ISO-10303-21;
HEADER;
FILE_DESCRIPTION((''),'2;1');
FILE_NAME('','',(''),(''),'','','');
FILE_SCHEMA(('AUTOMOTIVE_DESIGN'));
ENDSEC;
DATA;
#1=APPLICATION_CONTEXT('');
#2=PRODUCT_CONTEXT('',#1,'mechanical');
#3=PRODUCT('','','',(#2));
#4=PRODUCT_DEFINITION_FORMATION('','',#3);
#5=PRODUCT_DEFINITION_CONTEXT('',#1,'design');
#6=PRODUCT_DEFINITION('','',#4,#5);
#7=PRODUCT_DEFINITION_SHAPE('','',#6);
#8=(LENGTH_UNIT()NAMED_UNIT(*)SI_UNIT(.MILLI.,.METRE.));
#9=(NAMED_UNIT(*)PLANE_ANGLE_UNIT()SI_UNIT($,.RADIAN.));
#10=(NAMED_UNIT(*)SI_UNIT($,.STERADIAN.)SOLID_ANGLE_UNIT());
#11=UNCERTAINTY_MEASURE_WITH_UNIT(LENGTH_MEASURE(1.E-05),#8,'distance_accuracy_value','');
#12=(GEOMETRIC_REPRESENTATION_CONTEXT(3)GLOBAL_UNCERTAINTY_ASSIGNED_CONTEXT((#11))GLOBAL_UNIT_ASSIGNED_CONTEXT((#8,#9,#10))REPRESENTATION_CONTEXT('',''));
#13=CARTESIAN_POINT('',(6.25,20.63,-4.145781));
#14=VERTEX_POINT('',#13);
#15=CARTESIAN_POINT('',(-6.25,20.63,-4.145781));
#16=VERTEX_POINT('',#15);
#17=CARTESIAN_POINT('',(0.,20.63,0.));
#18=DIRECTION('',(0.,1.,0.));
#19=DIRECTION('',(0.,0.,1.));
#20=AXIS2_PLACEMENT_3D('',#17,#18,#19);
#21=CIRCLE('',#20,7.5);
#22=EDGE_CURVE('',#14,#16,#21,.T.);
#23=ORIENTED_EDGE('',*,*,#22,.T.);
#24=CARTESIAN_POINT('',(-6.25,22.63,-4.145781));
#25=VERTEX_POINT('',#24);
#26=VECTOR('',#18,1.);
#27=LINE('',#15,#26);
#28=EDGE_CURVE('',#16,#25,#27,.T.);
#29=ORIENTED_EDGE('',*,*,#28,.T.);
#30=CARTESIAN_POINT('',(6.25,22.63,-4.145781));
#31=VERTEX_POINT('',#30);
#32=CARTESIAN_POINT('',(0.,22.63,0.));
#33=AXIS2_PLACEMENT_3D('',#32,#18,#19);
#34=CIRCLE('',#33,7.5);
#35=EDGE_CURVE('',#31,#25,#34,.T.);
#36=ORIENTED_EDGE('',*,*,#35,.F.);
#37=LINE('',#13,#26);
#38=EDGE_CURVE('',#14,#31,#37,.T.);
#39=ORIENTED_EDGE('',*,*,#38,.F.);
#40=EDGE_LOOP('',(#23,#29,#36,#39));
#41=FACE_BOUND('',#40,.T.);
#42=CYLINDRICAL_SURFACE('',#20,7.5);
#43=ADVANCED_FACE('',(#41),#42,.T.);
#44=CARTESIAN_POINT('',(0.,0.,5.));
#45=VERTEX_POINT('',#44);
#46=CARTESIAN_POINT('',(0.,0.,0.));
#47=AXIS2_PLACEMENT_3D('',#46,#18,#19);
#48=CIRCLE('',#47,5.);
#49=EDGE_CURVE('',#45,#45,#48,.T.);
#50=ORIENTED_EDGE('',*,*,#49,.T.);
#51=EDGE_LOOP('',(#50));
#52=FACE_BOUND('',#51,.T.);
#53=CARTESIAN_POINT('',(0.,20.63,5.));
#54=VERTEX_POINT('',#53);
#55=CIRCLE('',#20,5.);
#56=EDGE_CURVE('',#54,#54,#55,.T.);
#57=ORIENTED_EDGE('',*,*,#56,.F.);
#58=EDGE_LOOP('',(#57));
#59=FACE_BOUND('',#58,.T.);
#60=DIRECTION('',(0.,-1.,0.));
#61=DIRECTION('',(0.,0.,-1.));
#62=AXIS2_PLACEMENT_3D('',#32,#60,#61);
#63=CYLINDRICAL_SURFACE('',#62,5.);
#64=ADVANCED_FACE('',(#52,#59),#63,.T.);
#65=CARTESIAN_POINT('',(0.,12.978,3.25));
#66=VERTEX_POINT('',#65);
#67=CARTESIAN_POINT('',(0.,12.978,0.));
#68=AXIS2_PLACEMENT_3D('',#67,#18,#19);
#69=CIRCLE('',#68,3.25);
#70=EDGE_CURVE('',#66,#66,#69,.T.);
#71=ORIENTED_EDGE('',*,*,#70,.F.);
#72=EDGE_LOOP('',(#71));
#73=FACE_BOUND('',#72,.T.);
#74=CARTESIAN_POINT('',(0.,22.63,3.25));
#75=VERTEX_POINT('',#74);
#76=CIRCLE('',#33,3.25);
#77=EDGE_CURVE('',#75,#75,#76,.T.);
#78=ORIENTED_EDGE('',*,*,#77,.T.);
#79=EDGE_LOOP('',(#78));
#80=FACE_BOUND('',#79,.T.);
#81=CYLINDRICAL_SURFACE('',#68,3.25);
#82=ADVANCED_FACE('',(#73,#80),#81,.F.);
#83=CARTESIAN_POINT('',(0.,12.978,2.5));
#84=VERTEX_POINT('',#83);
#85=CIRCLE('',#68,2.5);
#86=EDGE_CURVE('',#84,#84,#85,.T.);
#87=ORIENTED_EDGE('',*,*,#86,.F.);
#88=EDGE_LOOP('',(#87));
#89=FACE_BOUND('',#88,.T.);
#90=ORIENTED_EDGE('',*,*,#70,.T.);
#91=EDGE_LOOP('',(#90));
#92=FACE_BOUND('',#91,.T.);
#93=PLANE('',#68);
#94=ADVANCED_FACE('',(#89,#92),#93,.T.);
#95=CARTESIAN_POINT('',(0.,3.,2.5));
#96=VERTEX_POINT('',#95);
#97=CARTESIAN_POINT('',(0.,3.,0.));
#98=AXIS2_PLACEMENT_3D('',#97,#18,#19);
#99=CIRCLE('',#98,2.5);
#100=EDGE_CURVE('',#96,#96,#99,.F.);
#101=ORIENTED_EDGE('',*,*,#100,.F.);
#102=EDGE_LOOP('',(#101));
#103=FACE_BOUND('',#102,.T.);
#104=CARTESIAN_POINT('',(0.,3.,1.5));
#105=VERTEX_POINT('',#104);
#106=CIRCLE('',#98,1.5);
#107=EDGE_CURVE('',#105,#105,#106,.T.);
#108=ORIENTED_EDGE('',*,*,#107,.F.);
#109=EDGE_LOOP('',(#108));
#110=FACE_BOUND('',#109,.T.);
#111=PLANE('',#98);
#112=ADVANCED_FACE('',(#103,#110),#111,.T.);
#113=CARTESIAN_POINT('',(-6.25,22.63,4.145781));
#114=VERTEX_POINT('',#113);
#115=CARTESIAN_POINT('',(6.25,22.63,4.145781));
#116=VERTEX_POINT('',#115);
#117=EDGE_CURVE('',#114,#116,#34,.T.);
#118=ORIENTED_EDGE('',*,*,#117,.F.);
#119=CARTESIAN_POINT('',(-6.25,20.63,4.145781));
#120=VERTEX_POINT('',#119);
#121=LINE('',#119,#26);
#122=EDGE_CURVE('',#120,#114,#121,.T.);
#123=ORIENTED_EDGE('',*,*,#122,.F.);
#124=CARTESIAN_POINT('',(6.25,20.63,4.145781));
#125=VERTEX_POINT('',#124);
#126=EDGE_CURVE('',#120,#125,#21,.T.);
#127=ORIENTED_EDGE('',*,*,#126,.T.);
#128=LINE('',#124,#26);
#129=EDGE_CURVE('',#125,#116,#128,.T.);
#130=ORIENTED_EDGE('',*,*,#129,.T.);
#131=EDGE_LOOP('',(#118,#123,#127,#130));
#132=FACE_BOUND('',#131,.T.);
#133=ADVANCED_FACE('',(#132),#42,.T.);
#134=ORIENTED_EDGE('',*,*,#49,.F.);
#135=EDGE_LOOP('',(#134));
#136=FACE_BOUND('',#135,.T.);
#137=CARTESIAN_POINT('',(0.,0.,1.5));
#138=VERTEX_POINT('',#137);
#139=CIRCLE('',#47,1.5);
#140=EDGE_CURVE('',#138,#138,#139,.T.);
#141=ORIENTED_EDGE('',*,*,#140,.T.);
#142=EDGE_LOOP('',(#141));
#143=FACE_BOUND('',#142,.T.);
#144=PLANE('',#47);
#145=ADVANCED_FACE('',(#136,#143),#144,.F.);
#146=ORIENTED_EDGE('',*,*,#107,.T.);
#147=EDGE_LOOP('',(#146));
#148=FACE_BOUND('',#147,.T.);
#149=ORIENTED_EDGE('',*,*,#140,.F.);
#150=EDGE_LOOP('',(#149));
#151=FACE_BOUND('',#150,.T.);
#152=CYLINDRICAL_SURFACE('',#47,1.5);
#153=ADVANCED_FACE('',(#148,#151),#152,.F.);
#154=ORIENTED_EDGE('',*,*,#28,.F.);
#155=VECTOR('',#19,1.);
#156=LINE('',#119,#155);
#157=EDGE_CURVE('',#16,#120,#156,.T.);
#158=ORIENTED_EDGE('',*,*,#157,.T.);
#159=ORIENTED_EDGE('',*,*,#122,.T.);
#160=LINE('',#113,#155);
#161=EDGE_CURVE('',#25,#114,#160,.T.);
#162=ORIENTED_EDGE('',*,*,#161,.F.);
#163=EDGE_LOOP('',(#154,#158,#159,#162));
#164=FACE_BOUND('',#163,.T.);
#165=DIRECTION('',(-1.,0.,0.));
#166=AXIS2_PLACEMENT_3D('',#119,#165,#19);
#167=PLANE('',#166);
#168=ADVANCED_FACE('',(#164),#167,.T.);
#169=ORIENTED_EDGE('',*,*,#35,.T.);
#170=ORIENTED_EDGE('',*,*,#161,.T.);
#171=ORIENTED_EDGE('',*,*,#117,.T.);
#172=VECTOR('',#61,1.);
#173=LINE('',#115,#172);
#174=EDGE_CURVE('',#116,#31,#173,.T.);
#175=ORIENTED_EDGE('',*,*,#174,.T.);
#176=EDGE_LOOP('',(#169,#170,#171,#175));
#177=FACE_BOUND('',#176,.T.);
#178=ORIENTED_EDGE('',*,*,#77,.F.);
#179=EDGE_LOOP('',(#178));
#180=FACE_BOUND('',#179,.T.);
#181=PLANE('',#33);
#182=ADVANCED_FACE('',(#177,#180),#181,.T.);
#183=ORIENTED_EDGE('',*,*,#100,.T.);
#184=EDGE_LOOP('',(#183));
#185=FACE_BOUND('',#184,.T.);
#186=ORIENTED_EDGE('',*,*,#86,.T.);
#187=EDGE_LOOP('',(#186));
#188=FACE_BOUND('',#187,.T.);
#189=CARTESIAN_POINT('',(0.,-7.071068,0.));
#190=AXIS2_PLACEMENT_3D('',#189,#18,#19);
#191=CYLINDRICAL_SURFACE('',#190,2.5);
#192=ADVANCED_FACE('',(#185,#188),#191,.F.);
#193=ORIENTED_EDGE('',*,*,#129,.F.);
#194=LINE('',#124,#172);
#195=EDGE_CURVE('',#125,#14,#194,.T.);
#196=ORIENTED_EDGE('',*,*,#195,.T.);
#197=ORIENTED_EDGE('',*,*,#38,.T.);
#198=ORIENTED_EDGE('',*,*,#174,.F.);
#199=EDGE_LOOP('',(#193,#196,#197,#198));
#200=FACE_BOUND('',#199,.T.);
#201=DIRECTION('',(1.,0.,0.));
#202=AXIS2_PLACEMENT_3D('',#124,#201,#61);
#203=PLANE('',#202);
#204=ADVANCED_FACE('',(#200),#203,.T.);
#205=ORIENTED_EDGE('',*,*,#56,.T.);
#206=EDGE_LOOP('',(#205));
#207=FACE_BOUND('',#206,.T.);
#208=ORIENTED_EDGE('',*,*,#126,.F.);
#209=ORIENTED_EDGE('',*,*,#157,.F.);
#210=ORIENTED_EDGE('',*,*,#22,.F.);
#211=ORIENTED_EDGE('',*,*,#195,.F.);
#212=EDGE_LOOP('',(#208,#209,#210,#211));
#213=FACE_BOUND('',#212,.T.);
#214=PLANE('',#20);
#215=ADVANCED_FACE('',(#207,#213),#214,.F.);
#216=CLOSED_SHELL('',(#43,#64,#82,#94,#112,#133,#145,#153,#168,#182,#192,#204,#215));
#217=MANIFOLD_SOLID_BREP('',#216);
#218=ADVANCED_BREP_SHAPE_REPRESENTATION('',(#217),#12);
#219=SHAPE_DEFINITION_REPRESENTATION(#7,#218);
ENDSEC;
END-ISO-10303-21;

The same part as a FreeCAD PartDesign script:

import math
import FreeCAD as App
import Part
import Sketcher

V = App.Vector

doc = App.newDocument("Part")
body = doc.addObject("PartDesign::Body", "Body")

# Sketch on XZ plane
sketch1 = body.newObject("Sketcher::SketchObject", "Sketch")
sketch1.AttachmentSupport = (doc.getObject("XZ_Plane"), [""])
sketch1.MapMode = "FlatFace"
sketch1.addGeometry(Part.Circle(V(0, 0, 0), V(0, 0, 1), 5), False)
sketch1.addConstraint([
    Sketcher.Constraint("Coincident", 0, 3, -1, 1),
    Sketcher.Constraint("Diameter", 0, 10.0),
])
pad1 = body.newObject("PartDesign::Pad", "Pad")
pad1.Profile = sketch1
pad1.Length = 22.63
pad1.Reversed = True

# Sketch on XZ plane
sketch2 = body.newObject("Sketcher::SketchObject", "Sketch001")
sketch2.AttachmentSupport = (doc.getObject("XZ_Plane"), [""])
sketch2.MapMode = "FlatFace"
sketch2.AttachmentOffset = App.Placement(V(0, 0, -22.63), App.Rotation())
sketch2.addGeometry(Part.Circle(V(0, 0, 0), V(0, 0, 1), 3.25), False)
sketch2.addConstraint([
    Sketcher.Constraint("Coincident", 0, 3, -1, 1),
    Sketcher.Constraint("Diameter", 0, 6.5),
])
pocket1 = body.newObject("PartDesign::Pocket", "Pocket")
pocket1.Profile = sketch2
pocket1.Length = 9.652
pocket1.Reversed = True

# Sketch on XZ plane
sketch3 = body.newObject("Sketcher::SketchObject", "Sketch002")
sketch3.AttachmentSupport = (doc.getObject("XZ_Plane"), [""])
sketch3.MapMode = "FlatFace"
sketch3.AttachmentOffset = App.Placement(V(0, 0, -12.978), App.Rotation())
sketch3.addGeometry(Part.Circle(V(0, 0, 0), V(0, 0, 1), 2.5), False)
sketch3.addConstraint([
    Sketcher.Constraint("Coincident", 0, 3, -1, 1),
    Sketcher.Constraint("Diameter", 0, 5.0),
])
pocket2 = body.newObject("PartDesign::Pocket", "Pocket001")
pocket2.Profile = sketch3
pocket2.Length = 9.978
pocket2.Reversed = True

# Sketch on XZ plane
sketch4 = body.newObject("Sketcher::SketchObject", "Sketch003")
sketch4.AttachmentSupport = (doc.getObject("XZ_Plane"), [""])
sketch4.MapMode = "FlatFace"
sketch4.AttachmentOffset = App.Placement(V(0, 0, -3), App.Rotation())
sketch4.addGeometry(Part.Circle(V(0, 0, 0), V(0, 0, 1), 1.5), False)
sketch4.addConstraint([
    Sketcher.Constraint("Coincident", 0, 3, -1, 1),
    Sketcher.Constraint("Diameter", 0, 3.0),
])
pocket3 = body.newObject("PartDesign::Pocket", "Pocket002")
pocket3.Profile = sketch4
pocket3.Length = 3
pocket3.Reversed = True

# Sketch on XZ plane
sketch5 = body.newObject("Sketcher::SketchObject", "Sketch004")
sketch5.AttachmentSupport = (doc.getObject("XZ_Plane"), [""])
sketch5.MapMode = "FlatFace"
sketch5.AttachmentOffset = App.Placement(V(0, 0, -20.63), App.Rotation())
sketch5.addGeometry([
    Part.LineSegment(V(6.25, 4.145781, 0), V(6.25, -4.145781, 0)),  # 0
    Part.ArcOfCircle(Part.Circle(V(0, 0, 0), V(0, 0, 1), 7.5), math.radians(-146.44269), math.radians(-33.55731)),  # 1
    Part.LineSegment(V(-6.25, -4.145781, 0), V(-6.25, 4.145781, 0)),  # 2
    Part.ArcOfCircle(Part.Circle(V(0, 0, 0), V(0, 0, 1), 7.5), math.radians(33.55731), math.radians(146.44269)),  # 3
    Part.Circle(V(0, 0, 0), V(0, 0, 1), 5),  # 4
], False)
sketch5.addConstraint([
    Sketcher.Constraint("Coincident", 0, 2, 1, 2),
    Sketcher.Constraint("Coincident", 1, 1, 2, 1),
    Sketcher.Constraint("Coincident", 2, 2, 3, 2),
    Sketcher.Constraint("Coincident", 3, 1, 0, 1),
    Sketcher.Constraint("Vertical", 0),
    Sketcher.Constraint("Vertical", 2),
    Sketcher.Constraint("Coincident", 1, 3, -1, 1),
    Sketcher.Constraint("Coincident", 3, 3, -1, 1),
    Sketcher.Constraint("Coincident", 4, 3, -1, 1),
    Sketcher.Constraint("Equal", 1, 3),
    Sketcher.Constraint("Horizontal", 0, 2, 1, 1),
    Sketcher.Constraint("Diameter", 4, 10.0),
    Sketcher.Constraint("Radius", 1, 7.5),
    Sketcher.Constraint("DistanceX", 1, 1, 0, 2, 12.5),
])
pad2 = body.newObject("PartDesign::Pad", "Pad001")
pad2.Profile = sketch5
pad2.Length = 2
pad2.Reversed = True

doc.recompute()
